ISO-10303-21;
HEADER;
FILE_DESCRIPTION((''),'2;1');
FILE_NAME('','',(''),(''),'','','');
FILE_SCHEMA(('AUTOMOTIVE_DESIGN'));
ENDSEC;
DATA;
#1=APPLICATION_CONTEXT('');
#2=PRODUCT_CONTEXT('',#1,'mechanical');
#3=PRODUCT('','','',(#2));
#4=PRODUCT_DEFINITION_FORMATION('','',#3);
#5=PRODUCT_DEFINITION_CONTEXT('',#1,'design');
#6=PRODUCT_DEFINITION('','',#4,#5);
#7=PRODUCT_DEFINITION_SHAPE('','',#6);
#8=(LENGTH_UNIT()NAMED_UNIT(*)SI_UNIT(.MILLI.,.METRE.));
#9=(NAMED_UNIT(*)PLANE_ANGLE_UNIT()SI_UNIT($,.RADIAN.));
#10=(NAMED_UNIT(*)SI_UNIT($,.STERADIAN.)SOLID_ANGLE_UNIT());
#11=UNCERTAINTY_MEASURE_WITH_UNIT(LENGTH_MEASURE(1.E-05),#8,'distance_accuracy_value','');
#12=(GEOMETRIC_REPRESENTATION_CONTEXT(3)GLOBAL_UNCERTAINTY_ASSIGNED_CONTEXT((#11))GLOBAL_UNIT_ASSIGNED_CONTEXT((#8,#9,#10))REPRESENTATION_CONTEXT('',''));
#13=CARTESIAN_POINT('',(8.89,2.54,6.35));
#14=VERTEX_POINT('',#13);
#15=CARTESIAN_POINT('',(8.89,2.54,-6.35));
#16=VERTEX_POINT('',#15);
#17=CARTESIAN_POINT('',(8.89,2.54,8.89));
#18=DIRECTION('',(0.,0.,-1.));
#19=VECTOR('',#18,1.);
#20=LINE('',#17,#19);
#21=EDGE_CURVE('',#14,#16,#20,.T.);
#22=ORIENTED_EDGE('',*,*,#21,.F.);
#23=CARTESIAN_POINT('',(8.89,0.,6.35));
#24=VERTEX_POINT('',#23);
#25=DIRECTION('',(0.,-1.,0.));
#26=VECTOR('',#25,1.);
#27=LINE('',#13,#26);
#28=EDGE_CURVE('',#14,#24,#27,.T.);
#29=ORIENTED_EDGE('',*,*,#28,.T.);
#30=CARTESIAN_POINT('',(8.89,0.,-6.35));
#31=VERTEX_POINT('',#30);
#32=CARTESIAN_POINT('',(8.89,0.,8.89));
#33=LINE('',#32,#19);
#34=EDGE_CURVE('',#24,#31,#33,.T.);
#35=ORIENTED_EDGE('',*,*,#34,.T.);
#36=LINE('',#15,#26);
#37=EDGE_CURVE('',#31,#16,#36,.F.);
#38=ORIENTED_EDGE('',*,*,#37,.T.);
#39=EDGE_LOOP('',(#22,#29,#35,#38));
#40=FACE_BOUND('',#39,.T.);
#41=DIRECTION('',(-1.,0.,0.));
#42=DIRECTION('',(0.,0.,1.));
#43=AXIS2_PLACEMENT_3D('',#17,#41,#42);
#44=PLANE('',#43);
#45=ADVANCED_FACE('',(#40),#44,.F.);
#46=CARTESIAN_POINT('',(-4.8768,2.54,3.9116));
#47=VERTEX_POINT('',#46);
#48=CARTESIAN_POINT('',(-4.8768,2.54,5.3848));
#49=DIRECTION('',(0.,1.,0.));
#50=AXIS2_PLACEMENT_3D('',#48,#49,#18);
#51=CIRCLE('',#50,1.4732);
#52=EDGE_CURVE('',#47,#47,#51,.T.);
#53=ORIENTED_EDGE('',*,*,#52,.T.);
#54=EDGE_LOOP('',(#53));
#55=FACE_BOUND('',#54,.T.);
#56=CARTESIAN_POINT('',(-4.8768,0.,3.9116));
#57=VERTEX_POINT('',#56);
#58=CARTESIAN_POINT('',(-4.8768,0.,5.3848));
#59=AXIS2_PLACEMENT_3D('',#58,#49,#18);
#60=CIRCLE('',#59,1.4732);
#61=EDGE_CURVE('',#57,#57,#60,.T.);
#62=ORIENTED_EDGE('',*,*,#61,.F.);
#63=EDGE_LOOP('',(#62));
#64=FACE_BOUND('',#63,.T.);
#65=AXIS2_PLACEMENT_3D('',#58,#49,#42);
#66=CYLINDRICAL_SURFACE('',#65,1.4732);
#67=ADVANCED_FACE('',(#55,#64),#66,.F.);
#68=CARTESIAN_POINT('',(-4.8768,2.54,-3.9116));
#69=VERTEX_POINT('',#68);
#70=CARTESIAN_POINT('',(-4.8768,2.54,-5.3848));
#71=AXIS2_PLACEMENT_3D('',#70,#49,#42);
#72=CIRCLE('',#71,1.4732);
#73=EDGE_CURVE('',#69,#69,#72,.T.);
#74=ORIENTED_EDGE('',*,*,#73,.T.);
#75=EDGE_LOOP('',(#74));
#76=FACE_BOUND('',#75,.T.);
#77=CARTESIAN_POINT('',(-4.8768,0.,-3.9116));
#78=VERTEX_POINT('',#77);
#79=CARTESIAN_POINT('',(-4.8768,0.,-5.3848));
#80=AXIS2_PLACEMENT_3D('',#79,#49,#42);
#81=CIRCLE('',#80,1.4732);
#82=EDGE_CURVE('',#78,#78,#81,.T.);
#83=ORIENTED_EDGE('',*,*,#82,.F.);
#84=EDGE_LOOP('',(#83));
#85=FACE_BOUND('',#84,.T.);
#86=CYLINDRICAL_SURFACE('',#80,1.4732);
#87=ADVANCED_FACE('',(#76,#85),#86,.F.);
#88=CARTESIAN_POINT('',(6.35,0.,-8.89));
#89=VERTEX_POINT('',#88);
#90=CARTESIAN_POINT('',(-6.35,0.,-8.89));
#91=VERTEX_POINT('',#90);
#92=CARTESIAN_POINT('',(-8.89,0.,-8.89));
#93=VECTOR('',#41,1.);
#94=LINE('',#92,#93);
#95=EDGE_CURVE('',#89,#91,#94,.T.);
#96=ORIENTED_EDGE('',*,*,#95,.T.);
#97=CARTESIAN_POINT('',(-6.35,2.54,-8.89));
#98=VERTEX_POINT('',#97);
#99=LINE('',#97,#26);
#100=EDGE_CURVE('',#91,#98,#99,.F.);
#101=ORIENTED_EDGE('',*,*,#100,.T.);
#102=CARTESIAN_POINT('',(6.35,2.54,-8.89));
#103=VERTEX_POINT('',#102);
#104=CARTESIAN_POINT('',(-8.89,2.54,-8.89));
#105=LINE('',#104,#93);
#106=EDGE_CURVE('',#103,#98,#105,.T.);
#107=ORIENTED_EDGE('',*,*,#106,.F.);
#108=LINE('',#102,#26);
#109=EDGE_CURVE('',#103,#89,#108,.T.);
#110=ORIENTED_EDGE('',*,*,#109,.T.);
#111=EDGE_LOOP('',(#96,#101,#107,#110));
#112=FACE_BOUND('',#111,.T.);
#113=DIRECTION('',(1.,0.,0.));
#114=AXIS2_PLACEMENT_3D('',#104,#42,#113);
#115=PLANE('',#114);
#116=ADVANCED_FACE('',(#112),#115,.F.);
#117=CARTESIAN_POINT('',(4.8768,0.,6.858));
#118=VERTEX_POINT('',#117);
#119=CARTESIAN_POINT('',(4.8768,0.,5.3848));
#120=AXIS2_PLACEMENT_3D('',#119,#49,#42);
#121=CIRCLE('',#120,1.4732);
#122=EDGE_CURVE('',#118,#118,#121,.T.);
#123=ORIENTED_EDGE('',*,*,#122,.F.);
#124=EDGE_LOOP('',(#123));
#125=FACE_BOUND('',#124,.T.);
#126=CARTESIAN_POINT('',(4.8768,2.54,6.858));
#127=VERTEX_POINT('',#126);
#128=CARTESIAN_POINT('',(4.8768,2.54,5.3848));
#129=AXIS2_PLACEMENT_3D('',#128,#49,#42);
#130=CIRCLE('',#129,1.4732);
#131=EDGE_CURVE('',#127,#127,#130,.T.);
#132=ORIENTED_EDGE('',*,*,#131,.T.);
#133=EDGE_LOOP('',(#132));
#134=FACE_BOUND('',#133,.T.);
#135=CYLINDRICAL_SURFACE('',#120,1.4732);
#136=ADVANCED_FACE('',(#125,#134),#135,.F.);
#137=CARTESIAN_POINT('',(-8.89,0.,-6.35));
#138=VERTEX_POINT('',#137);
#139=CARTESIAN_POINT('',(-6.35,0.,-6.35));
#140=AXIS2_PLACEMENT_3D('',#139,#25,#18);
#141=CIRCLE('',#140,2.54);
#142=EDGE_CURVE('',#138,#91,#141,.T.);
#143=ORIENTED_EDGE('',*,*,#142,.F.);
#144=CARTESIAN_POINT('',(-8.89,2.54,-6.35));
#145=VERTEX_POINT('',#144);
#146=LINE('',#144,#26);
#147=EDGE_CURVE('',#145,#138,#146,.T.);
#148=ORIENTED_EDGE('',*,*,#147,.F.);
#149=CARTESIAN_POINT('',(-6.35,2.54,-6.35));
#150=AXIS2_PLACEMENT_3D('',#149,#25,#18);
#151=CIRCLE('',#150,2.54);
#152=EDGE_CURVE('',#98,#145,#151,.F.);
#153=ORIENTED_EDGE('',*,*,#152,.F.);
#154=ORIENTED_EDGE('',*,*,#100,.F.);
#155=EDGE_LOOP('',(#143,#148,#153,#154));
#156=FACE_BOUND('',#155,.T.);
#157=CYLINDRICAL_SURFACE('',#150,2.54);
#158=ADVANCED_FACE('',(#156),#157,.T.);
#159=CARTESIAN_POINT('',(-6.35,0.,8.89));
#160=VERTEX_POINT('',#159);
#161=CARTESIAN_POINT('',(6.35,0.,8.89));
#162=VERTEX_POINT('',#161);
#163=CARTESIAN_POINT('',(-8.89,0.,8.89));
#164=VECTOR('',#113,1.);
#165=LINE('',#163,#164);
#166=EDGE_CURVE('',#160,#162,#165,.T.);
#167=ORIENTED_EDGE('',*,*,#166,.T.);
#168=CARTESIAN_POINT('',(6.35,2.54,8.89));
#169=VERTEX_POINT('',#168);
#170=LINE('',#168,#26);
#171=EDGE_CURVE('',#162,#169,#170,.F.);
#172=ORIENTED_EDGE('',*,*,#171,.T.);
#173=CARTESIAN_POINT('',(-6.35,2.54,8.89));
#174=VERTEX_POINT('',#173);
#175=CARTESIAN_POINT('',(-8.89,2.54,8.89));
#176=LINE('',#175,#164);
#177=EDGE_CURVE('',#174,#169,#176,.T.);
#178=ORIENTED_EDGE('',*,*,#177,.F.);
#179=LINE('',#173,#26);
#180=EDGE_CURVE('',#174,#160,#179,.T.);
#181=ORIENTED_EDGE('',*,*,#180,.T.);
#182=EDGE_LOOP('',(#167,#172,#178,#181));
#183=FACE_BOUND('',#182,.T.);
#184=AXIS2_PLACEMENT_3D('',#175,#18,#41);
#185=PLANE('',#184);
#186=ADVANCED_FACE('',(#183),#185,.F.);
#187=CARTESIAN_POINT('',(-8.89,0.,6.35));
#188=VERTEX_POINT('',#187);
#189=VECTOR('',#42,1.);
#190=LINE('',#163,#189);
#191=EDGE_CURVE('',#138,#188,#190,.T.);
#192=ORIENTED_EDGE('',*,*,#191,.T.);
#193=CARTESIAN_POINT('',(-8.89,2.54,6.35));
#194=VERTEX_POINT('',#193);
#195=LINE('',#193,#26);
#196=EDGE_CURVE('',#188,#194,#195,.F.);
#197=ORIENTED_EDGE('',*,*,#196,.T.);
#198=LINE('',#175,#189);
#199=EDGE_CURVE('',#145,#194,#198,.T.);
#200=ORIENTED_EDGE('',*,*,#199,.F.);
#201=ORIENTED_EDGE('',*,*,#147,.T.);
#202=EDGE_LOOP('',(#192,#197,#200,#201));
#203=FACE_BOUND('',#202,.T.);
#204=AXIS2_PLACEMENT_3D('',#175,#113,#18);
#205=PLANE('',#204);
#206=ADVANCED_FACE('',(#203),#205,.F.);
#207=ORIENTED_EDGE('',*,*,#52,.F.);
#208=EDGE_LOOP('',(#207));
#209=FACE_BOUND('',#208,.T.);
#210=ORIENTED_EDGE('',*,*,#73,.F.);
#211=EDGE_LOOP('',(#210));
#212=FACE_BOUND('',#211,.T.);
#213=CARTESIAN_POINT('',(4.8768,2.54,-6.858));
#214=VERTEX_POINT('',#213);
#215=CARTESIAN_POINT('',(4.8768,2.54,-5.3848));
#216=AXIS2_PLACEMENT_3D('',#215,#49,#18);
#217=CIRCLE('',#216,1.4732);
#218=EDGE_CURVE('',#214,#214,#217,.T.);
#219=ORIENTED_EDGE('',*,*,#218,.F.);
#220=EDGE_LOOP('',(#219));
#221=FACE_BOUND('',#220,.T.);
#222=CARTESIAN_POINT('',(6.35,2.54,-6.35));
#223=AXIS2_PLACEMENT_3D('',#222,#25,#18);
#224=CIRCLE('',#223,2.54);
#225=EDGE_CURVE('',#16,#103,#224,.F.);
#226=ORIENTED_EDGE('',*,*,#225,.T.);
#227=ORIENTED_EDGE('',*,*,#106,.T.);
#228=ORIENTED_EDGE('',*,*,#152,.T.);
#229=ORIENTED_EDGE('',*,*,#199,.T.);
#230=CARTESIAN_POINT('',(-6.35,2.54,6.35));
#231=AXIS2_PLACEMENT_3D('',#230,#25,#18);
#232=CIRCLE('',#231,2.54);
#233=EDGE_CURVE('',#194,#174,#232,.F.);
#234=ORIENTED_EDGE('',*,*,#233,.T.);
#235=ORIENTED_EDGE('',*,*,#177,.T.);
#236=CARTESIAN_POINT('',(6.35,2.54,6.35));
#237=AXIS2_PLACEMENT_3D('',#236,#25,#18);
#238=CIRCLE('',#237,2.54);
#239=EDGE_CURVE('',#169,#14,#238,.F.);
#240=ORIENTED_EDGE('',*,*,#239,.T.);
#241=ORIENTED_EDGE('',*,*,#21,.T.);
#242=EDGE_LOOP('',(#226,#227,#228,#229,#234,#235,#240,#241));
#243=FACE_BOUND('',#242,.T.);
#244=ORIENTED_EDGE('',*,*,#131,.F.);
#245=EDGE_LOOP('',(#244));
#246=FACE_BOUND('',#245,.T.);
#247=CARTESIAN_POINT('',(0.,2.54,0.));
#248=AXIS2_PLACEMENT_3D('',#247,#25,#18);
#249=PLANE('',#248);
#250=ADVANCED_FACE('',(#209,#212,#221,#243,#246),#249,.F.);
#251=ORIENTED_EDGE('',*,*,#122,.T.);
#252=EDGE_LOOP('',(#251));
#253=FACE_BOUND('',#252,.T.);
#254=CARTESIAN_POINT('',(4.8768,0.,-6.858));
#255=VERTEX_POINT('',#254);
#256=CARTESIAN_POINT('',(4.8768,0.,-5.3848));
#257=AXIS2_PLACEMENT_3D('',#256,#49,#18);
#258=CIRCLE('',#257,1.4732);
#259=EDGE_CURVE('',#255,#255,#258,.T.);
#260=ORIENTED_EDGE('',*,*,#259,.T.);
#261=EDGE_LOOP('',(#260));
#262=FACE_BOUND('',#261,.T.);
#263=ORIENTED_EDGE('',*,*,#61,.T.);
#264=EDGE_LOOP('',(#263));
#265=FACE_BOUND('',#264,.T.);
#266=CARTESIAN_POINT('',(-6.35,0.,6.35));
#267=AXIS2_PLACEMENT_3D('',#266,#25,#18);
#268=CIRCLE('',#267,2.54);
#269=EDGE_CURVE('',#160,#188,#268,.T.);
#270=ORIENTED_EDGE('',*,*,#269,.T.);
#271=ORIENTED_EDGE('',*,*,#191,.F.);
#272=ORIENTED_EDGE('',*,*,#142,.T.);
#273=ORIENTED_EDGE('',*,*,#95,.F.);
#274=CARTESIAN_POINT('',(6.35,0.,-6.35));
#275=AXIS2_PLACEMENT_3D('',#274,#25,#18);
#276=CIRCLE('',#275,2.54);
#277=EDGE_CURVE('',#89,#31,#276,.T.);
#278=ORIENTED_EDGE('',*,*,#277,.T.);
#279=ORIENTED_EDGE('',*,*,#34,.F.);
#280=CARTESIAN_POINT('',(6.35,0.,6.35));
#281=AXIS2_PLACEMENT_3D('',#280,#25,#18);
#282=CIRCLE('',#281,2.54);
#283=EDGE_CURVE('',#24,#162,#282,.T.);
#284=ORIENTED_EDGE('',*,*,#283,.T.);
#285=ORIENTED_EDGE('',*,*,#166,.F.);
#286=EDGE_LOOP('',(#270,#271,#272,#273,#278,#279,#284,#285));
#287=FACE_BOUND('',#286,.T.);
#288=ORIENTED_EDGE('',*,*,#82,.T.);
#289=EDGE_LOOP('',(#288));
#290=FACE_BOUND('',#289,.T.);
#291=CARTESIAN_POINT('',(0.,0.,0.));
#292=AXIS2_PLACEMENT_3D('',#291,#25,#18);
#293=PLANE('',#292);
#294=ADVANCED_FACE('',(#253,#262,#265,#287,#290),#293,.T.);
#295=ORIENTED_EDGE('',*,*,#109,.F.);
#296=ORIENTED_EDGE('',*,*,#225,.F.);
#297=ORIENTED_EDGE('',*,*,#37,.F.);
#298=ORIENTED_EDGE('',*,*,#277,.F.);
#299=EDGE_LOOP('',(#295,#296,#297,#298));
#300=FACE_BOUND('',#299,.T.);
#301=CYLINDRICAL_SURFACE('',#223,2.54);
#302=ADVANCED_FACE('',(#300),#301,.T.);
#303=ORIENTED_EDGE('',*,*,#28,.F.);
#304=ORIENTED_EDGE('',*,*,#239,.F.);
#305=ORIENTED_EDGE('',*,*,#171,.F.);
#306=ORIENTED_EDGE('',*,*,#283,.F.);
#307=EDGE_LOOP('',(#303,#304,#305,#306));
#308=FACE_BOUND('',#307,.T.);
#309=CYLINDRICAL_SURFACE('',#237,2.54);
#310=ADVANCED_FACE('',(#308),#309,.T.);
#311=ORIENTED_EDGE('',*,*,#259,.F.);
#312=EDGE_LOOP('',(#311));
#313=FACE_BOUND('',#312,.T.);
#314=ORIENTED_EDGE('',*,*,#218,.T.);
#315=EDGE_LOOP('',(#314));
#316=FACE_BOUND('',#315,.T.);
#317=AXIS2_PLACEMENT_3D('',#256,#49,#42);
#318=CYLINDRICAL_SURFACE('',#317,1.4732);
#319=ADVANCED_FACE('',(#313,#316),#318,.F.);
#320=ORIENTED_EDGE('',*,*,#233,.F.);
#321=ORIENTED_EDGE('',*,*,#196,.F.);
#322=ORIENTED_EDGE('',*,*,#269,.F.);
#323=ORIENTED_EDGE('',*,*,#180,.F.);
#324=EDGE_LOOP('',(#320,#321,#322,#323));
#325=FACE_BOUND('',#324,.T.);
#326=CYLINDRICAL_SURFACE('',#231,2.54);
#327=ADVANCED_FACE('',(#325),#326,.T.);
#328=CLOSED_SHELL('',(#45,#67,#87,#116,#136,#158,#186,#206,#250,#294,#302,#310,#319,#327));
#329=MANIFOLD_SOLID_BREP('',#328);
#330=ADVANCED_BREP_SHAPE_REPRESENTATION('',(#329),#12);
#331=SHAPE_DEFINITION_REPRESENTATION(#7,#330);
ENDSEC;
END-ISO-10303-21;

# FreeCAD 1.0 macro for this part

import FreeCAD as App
import Part
import Sketcher

V = App.Vector
Q = App.Units.Quantity


def edges_at(feature, points):
    """Names of the edges that pass closest to the given points."""
    edges = feature.Shape.Edges
    near = lambda p: min(range(len(edges)), key=lambda i: edges[i].distToShape(Part.Vertex(*p))[0])
    return sorted({f"Edge{near(p) + 1}" for p in points})

doc = App.newDocument("Part")
body = doc.addObject("PartDesign::Body", "Body")

# Sketch on XZ plane
sketch1 = doc.addObject("Sketcher::SketchObject", "Sketch")
body.addObject(sketch1)
sketch1.AttachmentSupport = (doc.XZ_Plane, [""])
sketch1.MapMode = "FlatFace"
sketch1.addGeometry([
    Part.LineSegment(V(-8.89, -8.89, 0), V(-8.89, 8.89, 0)),
    Part.LineSegment(V(-8.89, 8.89, 0), V(8.89, 8.89, 0)),
    Part.LineSegment(V(8.89, 8.89, 0), V(8.89, -8.89, 0)),
    Part.LineSegment(V(8.89, -8.89, 0), V(-8.89, -8.89, 0)),
], False)
sketch1.addConstraint([
    Sketcher.Constraint("Coincident", 0, 2, 1, 1),
    Sketcher.Constraint("Coincident", 1, 2, 2, 1),
    Sketcher.Constraint("Coincident", 2, 2, 3, 1),
    Sketcher.Constraint("Coincident", 3, 2, 0, 1),
    Sketcher.Constraint("Vertical", 0),
    Sketcher.Constraint("Horizontal", 1),
    Sketcher.Constraint("Vertical", 2),
    Sketcher.Constraint("Horizontal", 3),
    Sketcher.Constraint("Symmetric", 0, 2, 2, 2, -1, 1),
    Sketcher.Constraint("Equal", 3, 0),
    Sketcher.Constraint("DistanceX", 1, 1, 1, 2, Q("0.7 in")),
])
pad1 = doc.addObject("PartDesign::Pad", "Pad")
body.addObject(pad1)
pad1.Profile = sketch1
pad1.Length = Q("0.1 in")
pad1.Reversed = True

# Sketch on XZ plane
sketch2 = doc.addObject("Sketcher::SketchObject", "Sketch001")
body.addObject(sketch2)
sketch2.AttachmentSupport = (doc.XZ_Plane, [""])
sketch2.MapMode = "FlatFace"
sketch2.AttachmentOffset = App.Placement(V(0, 0, -0.1 * 25.4), App.Rotation())
sketch2.addGeometry([
    Part.Circle(V(-4.8768, -5.3848, 0), V(0, 0, 1), 1.4732),
    Part.Circle(V(-4.8768, 5.3848, 0), V(0, 0, 1), 1.4732),
    Part.Circle(V(4.8768, 5.3848, 0), V(0, 0, 1), 1.4732),
    Part.Circle(V(4.8768, -5.3848, 0), V(0, 0, 1), 1.4732),
], False)
sketch2.addConstraint([
    Sketcher.Constraint("Equal", 0, 1),
    Sketcher.Constraint("Equal", 1, 2),
    Sketcher.Constraint("Equal", 2, 3),
    Sketcher.Constraint("Symmetric", 0, 3, 2, 3, -1, 1),
    Sketcher.Constraint("Symmetric", 1, 3, 3, 3, -1, 1),
    Sketcher.Constraint("Symmetric", 1, 3, 2, 3, -2),
    Sketcher.Constraint("Diameter", 0, Q("0.116 in")),
    Sketcher.Constraint("DistanceX", 0, 3, -1, 1, Q("0.192 in")),
    Sketcher.Constraint("DistanceY", 0, 3, -1, 1, Q("0.212 in")),
])
pocket1 = doc.addObject("PartDesign::Pocket", "Pocket")
body.addObject(pocket1)
pocket1.Profile = sketch2
pocket1.Type = "ThroughAll"
pocket1.Reversed = True
doc.recompute()

fillet = doc.addObject("PartDesign::Fillet", "Fillet")
body.addObject(fillet)
fillet.Base = (pocket1, edges_at(pocket1, [
    (8.89, 1.27, 8.89),
    (-8.89, 1.27, 8.89),
    (-8.89, 1.27, -8.89),
    (8.89, 1.27, -8.89),
]))
fillet.Radius = Q("0.1 in")

doc.recompute()
